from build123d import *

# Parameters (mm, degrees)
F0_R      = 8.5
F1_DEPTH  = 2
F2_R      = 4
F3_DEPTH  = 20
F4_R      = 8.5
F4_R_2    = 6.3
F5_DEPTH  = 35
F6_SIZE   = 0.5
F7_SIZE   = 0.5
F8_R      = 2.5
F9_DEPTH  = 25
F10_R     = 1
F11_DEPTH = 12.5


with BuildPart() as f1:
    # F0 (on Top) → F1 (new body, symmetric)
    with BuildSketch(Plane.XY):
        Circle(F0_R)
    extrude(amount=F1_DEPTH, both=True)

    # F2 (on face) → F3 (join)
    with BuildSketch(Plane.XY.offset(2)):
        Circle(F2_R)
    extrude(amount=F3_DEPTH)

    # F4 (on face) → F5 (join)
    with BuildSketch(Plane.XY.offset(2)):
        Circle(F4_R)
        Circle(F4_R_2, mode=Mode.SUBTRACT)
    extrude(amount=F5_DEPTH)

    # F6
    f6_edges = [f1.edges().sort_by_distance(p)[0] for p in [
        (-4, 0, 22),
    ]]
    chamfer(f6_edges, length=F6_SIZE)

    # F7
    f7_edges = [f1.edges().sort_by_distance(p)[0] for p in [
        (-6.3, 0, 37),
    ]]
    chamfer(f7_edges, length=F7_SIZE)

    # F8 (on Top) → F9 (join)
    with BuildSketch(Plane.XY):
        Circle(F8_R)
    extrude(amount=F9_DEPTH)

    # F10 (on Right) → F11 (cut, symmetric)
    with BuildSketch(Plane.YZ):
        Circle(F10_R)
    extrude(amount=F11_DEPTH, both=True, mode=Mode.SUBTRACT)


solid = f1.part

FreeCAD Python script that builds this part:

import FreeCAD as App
import Part
import Sketcher


def edges_at(feature, points):
    """Names of the edges that pass closest to the given points."""
    edges = feature.Shape.Edges
    near = lambda p: min(range(len(edges)), key=lambda i: edges[i].distToShape(Part.Vertex(*p))[0])
    return sorted({f"Edge{near(p) + 1}" for p in points})

doc = App.newDocument("Part")
body = doc.addObject("PartDesign::Body", "Body")

# Sketch on XY plane
sketch1 = doc.addObject("Sketcher::SketchObject", "Sketch")
body.addObject(sketch1)
sketch1.AttachmentSupport = (doc.XY_Plane, [""])
sketch1.MapMode = "FlatFace"
sketch1.addGeometry(Part.Circle(App.Vector(0, 0, 0), App.Vector(0, 0, 1), 8), False)
sketch1.addConstraint([
    Sketcher.Constraint("Coincident", 0, 3, -1, 1),
    Sketcher.Constraint("Diameter", 0, 17.0),
])
pad1 = doc.addObject("PartDesign::Pad", "Pad")
body.addObject(pad1)
pad1.Profile = sketch1
pad1.Length = 4
pad1.Midplane = True

# Sketch on XY plane
sketch2 = doc.addObject("Sketcher::SketchObject", "Sketch001")
body.addObject(sketch2)
sketch2.AttachmentSupport = (doc.XY_Plane, [""])
sketch2.MapMode = "FlatFace"
sketch2.AttachmentOffset = App.Placement(App.Vector(0, 0, 2), App.Rotation())
sketch2.addGeometry(Part.Circle(App.Vector(0, 0, 0), App.Vector(0, 0, 1), 4), False)
sketch2.addConstraint([
    Sketcher.Constraint("Coincident", 0, 3, -1, 1),
    Sketcher.Constraint("Diameter", 0, 8.0),
])
pad2 = doc.addObject("PartDesign::Pad", "Pad001")
body.addObject(pad2)
pad2.Profile = sketch2
pad2.Length = 20

# Sketch on XY plane
sketch3 = doc.addObject("Sketcher::SketchObject", "Sketch002")
body.addObject(sketch3)
sketch3.AttachmentSupport = (doc.XY_Plane, [""])
sketch3.MapMode = "FlatFace"
sketch3.AttachmentOffset = App.Placement(App.Vector(0, 0, 2), App.Rotation())
sketch3.addGeometry([
    Part.Circle(App.Vector(0, 0, 0), App.Vector(0, 0, 1), 8),
    Part.Circle(App.Vector(0, 0, 0), App.Vector(0, 0, 1), 6),
], False)
sketch3.addConstraint([
    Sketcher.Constraint("Coincident", 0, 3, -1, 1),
    Sketcher.Constraint("Coincident", 1, 3, -1, 1),
    Sketcher.Constraint("Diameter", 0, 17.0),
    Sketcher.Constraint("Diameter", 1, 12.6),
])
pad3 = doc.addObject("PartDesign::Pad", "Pad002")
body.addObject(pad3)
pad3.Profile = sketch3
pad3.Length = 35
doc.recompute()

chamfer = doc.addObject("PartDesign::Chamfer", "Chamfer")
body.addObject(chamfer)
chamfer.Base = (pad3, edges_at(pad3, [(-4, 0, 22)]))
chamfer.Size = 0.5
doc.recompute()

chamfer2 = doc.addObject("PartDesign::Chamfer", "Chamfer001")
body.addObject(chamfer2)
chamfer2.Base = (chamfer, edges_at(chamfer, [(-6.3, 0, 37)]))
chamfer2.Size = 0.5

# Sketch on XY plane
sketch4 = doc.addObject("Sketcher::SketchObject", "Sketch003")
body.addObject(sketch4)
sketch4.AttachmentSupport = (doc.XY_Plane, [""])
sketch4.MapMode = "FlatFace"
sketch4.addGeometry(Part.Circle(App.Vector(0, 0, 0), App.Vector(0, 0, 1), 2.5), False)
sketch4.addConstraint([
    Sketcher.Constraint("Coincident", 0, 3, -1, 1),
    Sketcher.Constraint("Diameter", 0, 5.0),
])
pad4 = doc.addObject("PartDesign::Pad", "Pad003")
body.addObject(pad4)
pad4.Profile = sketch4
pad4.Length = 25

# Sketch on YZ plane
sketch5 = doc.addObject("Sketcher::SketchObject", "Sketch004")
body.addObject(sketch5)
sketch5.AttachmentSupport = (doc.YZ_Plane, [""])
sketch5.MapMode = "FlatFace"
sketch5.addGeometry(Part.Circle(App.Vector(0, 0, 0), App.Vector(0, 0, 1), 1), False)
sketch5.addConstraint([
    Sketcher.Constraint("Coincident", 0, 3, -1, 1),
    Sketcher.Constraint("Diameter", 0, 2.0),
])
pocket1 = doc.addObject("PartDesign::Pocket", "Pocket")
body.addObject(pocket1)
pocket1.Profile = sketch5
pocket1.Length = 25
pocket1.Midplane = True

doc.recompute()
